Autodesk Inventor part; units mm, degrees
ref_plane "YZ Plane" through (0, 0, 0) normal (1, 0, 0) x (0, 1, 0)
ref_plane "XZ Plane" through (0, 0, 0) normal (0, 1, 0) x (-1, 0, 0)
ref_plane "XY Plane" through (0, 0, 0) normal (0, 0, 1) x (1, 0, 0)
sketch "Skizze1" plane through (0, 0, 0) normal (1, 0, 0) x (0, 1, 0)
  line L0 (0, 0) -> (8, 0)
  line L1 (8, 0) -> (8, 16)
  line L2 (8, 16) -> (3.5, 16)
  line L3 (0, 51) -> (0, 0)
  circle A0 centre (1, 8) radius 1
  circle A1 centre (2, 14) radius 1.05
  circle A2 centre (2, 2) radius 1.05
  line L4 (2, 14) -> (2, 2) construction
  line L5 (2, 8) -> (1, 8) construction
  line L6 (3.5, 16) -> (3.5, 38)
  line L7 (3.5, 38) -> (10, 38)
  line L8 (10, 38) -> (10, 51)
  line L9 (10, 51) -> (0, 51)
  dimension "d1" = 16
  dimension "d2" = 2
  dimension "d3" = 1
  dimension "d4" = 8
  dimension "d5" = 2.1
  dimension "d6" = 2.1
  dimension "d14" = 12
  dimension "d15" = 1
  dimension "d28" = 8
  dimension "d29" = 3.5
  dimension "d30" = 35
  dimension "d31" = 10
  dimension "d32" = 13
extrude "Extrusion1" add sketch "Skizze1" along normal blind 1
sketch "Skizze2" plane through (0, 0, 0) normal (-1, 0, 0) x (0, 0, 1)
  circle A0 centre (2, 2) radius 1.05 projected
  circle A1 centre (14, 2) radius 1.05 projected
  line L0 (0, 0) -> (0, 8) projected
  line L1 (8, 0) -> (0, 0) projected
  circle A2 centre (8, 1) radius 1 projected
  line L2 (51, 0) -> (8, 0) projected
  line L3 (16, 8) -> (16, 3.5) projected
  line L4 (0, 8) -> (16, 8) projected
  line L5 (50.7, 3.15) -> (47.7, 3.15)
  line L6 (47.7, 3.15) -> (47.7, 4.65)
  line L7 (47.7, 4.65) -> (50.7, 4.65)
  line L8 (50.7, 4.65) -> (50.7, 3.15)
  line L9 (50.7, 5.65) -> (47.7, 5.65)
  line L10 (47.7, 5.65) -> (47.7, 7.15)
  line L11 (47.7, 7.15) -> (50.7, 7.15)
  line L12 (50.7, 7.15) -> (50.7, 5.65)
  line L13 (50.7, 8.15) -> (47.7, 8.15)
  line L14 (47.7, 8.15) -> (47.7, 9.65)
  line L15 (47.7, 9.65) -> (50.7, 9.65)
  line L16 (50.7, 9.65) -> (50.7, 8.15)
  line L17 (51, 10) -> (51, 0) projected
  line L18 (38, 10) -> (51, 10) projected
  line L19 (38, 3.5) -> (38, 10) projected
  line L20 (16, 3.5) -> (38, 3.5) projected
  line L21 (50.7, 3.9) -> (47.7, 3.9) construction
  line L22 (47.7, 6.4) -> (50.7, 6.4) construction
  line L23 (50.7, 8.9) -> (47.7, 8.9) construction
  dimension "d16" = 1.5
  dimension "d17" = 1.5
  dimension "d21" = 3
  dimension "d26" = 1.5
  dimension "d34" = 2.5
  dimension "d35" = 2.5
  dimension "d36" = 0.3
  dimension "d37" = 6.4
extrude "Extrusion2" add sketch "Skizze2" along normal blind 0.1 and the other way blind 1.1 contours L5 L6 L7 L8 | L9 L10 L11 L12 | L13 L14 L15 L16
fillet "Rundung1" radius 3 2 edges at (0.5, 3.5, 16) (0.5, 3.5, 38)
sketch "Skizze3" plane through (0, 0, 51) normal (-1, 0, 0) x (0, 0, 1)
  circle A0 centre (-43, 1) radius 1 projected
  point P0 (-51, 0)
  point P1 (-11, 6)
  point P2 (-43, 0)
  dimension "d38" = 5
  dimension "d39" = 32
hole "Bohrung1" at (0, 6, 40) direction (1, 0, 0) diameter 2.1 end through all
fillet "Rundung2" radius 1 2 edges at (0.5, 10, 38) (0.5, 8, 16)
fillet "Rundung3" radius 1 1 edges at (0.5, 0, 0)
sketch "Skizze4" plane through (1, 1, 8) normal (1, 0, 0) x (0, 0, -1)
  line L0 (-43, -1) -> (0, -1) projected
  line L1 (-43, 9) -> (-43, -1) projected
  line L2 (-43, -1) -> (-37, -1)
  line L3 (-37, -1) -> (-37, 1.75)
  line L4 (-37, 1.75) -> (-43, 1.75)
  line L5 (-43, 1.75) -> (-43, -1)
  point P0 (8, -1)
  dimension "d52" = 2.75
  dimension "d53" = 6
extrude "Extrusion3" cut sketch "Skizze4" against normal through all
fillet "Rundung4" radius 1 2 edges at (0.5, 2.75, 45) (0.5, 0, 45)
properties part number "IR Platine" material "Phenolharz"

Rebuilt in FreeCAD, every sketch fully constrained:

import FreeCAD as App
import Part
import Sketcher
from FreeCAD import Vector
Q = App.Units.Quantity


def edges_at(feature, points):
    """Names of the edges that pass closest to the given points."""
    edges = feature.Shape.Edges
    near = lambda p: min(range(len(edges)), key=lambda i: edges[i].distToShape(Part.Vertex(*p))[0])
    return sorted({f"Edge{near(p) + 1}" for p in points})

doc = App.newDocument("Part")
params = doc.addObject("Spreadsheet::Sheet", "Params")
for row, (alias, value) in enumerate([
    ("sketch1_diameter", "2 mm"),
    ("sketch1_diameter2", "2.1 mm"),
    ("sketch1_width", "8 mm"),
    ("sketch1_width2", "10 mm"),
    ("sketch1_height", "16 mm"),
    ("pad1_length", "1 mm"),
    ("sketch2_height", "3 mm"),
    ("sketch2_width", "1.5 mm"),
    ("pad2_length", "0.1 mm"),
    ("pad2_length2", "1.1 mm"),
    ("fillet_radius", "3 mm"),
    ("sketch3_diameter", "2.1 mm"),
    ("hole_diameter", "2.1 mm"),
    ("fillet2_radius", "1 mm"),
    ("fillet3_radius", "1 mm"),
    ("sketch4_height", "6 mm"),
    ("sketch4_width", "2.75 mm"),
    ("fillet4_radius", "1 mm"),
], start=1):
    params.set(f"A{row}", alias)
    params.set(f"B{row}", "=" + value)
    params.setAlias(f"B{row}", alias)

body = doc.addObject("PartDesign::Body", "Body")

# Sketch on YZ plane
sketch1 = body.newObject("Sketcher::SketchObject", "Sketch")
sketch1.AttachmentSupport = (doc.getObject("YZ_Plane"), [""])
sketch1.MapMode = "FlatFace"
sketch1.addGeometry(Part.LineSegment(Vector(0, 8, 0), Vector(0, 0, 0)), False)
sketch1.addGeometry(Part.LineSegment(Vector(0, 0, 0), Vector(8, 0, 0)), False)
sketch1.addGeometry(Part.LineSegment(Vector(8, 0, 0), Vector(8, 16, 0)), False)
sketch1.addGeometry(Part.LineSegment(Vector(8, 16, 0), Vector(3.5, 16, 0)), False)
sketch1.addGeometry(Part.LineSegment(Vector(3.5, 16, 0), Vector(3.5, 38, 0)), False)
sketch1.addGeometry(Part.LineSegment(Vector(3.5, 38, 0), Vector(10, 38, 0)), False)
sketch1.addGeometry(Part.LineSegment(Vector(10, 38, 0), Vector(10, 51, 0)), False)
sketch1.addGeometry(Part.LineSegment(Vector(10, 51, 0), Vector(0, 51, 0)), False)
sketch1.addGeometry(Part.LineSegment(Vector(0, 51, 0), Vector(0, 8, 0)), False)
sketch1.addGeometry(Part.Circle(Vector(2, 2, 0), Vector(0, 0, 1), 1.05), False)
sketch1.addGeometry(Part.Circle(Vector(1, 8, 0), Vector(0, 0, 1), 1), False)
sketch1.addGeometry(Part.Circle(Vector(2, 14, 0), Vector(0, 0, 1), 1.05), False)
sketch1.addConstraint(Sketcher.Constraint("Coincident", 0, 2, 1, 1))
sketch1.addConstraint(Sketcher.Constraint("Coincident", 1, 2, 2, 1))
sketch1.addConstraint(Sketcher.Constraint("Coincident", 2, 2, 3, 1))
sketch1.addConstraint(Sketcher.Constraint("Coincident", 3, 2, 4, 1))
sketch1.addConstraint(Sketcher.Constraint("Coincident", 4, 2, 5, 1))
sketch1.addConstraint(Sketcher.Constraint("Coincident", 5, 2, 6, 1))
sketch1.addConstraint(Sketcher.Constraint("Coincident", 6, 2, 7, 1))
sketch1.addConstraint(Sketcher.Constraint("Coincident", 7, 2, 8, 1))
sketch1.addConstraint(Sketcher.Constraint("Coincident", 8, 2, 0, 1))
sketch1.addConstraint(Sketcher.Constraint("Vertical", 0))
sketch1.addConstraint(Sketcher.Constraint("Horizontal", 1))
sketch1.addConstraint(Sketcher.Constraint("Vertical", 2))
sketch1.addConstraint(Sketcher.Constraint("Horizontal", 3))
sketch1.addConstraint(Sketcher.Constraint("Vertical", 4))
sketch1.addConstraint(Sketcher.Constraint("Horizontal", 5))
sketch1.addConstraint(Sketcher.Constraint("Vertical", 6))
sketch1.addConstraint(Sketcher.Constraint("Horizontal", 7))
sketch1.addConstraint(Sketcher.Constraint("Vertical", 8))
sketch1.addConstraint(Sketcher.Constraint("Coincident", 0, 2, -1, 1))
sketch1.addConstraint(Sketcher.Constraint("Equal", 9, 11))
sketch1.addConstraint(Sketcher.Constraint("Horizontal", 10, 3, 8, 2))
sketch1.addConstraint(Sketcher.Constraint("Vertical", 9, 3, 11, 3))
sketch1.addConstraint(Sketcher.Constraint("Equal", 1, 0))
sketch1.addConstraint(Sketcher.Constraint("Diameter", 10, Q("2 mm")))
sketch1.addConstraint(Sketcher.Constraint("Diameter", 9, Q("2.1 mm")))
sketch1.addConstraint(Sketcher.Constraint("DistanceX", 1, 1, 1, 2, Q("8 mm")))
sketch1.addConstraint(Sketcher.Constraint("DistanceX", 7, 2, 7, 1, Q("10 mm")))
sketch1.addConstraint(Sketcher.Constraint("DistanceY", 2, 1, 2, 2, Q("16 mm")))
sketch1.addConstraint(Sketcher.Constraint("DistanceY", 6, 1, 6, 2, Q("13 mm")))
sketch1.addConstraint(Sketcher.Constraint("DistanceX", -1, 1, 9, 3, Q("2 mm")))
sketch1.addConstraint(Sketcher.Constraint("DistanceY", -1, 1, 9, 3, Q("2 mm")))
sketch1.addConstraint(Sketcher.Constraint("DistanceX", -1, 1, 10, 3, Q("1 mm")))
sketch1.addConstraint(Sketcher.Constraint("DistanceY", 9, 3, 11, 3, Q("12 mm")))
sketch1.addConstraint(Sketcher.Constraint("DistanceY", 2, 2, 6, 2, Q("35 mm")))
sketch1.addConstraint(Sketcher.Constraint("DistanceX", -1, 1, 3, 2, Q("3.5 mm")))
sketch1.setExpression("Constraints[23]", "Params.sketch1_diameter")
sketch1.setExpression("Constraints[24]", "Params.sketch1_diameter2")
sketch1.setExpression("Constraints[25]", "Params.sketch1_width")
sketch1.setExpression("Constraints[26]", "Params.sketch1_width2")
sketch1.setExpression("Constraints[27]", "Params.sketch1_height")
pad1 = body.newObject("PartDesign::Pad", "Pad")
pad1.Profile = sketch1
pad1.setExpression("Length", "Params.pad1_length")

# Sketch on YZ plane
sketch2 = body.newObject("Sketcher::SketchObject", "Sketch001")
sketch2.AttachmentSupport = (doc.getObject("YZ_Plane"), [""])
sketch2.MapMode = "FlatFace"
sketch2.addGeometry(Part.LineSegment(Vector(3.15, 47.7, 0), Vector(3.15, 50.7, 0)), False)
sketch2.addGeometry(Part.LineSegment(Vector(3.15, 50.7, 0), Vector(4.65, 50.7, 0)), False)
sketch2.addGeometry(Part.LineSegment(Vector(4.65, 50.7, 0), Vector(4.65, 47.7, 0)), False)
sketch2.addGeometry(Part.LineSegment(Vector(4.65, 47.7, 0), Vector(3.15, 47.7, 0)), False)
sketch2.addGeometry(Part.LineSegment(Vector(5.65, 47.7, 0), Vector(5.65, 50.7, 0)), False)
sketch2.addGeometry(Part.LineSegment(Vector(5.65, 50.7, 0), Vector(7.15, 50.7, 0)), False)
sketch2.addGeometry(Part.LineSegment(Vector(7.15, 50.7, 0), Vector(7.15, 47.7, 0)), False)
sketch2.addGeometry(Part.LineSegment(Vector(7.15, 47.7, 0), Vector(5.65, 47.7, 0)), False)
sketch2.addGeometry(Part.LineSegment(Vector(8.15, 47.7, 0), Vector(8.15, 50.7, 0)), False)
sketch2.addGeometry(Part.LineSegment(Vector(8.15, 50.7, 0), Vector(9.65, 50.7, 0)), False)
sketch2.addGeometry(Part.LineSegment(Vector(9.65, 50.7, 0), Vector(9.65, 47.7, 0)), False)
sketch2.addGeometry(Part.LineSegment(Vector(9.65, 47.7, 0), Vector(8.15, 47.7, 0)), False)
sketch2.addConstraint(Sketcher.Constraint("Coincident", 0, 2, 1, 1))
sketch2.addConstraint(Sketcher.Constraint("Coincident", 1, 2, 2, 1))
sketch2.addConstraint(Sketcher.Constraint("Coincident", 2, 2, 3, 1))
sketch2.addConstraint(Sketcher.Constraint("Coincident", 3, 2, 0, 1))
sketch2.addConstraint(Sketcher.Constraint("Coincident", 4, 2, 5, 1))
sketch2.addConstraint(Sketcher.Constraint("Coincident", 5, 2, 6, 1))
sketch2.addConstraint(Sketcher.Constraint("Coincident", 6, 2, 7, 1))
sketch2.addConstraint(Sketcher.Constraint("Coincident", 7, 2, 4, 1))
sketch2.addConstraint(Sketcher.Constraint("Coincident", 8, 2, 9, 1))
sketch2.addConstraint(Sketcher.Constraint("Coincident", 9, 2, 10, 1))
sketch2.addConstraint(Sketcher.Constraint("Coincident", 10, 2, 11, 1))
sketch2.addConstraint(Sketcher.Constraint("Coincident", 11, 2, 8, 1))
sketch2.addConstraint(Sketcher.Constraint("Vertical", 0))
sketch2.addConstraint(Sketcher.Constraint("Horizontal", 1))
sketch2.addConstraint(Sketcher.Constraint("Vertical", 2))
sketch2.addConstraint(Sketcher.Constraint("Horizontal", 3))
sketch2.addConstraint(Sketcher.Constraint("Vertical", 4))
sketch2.addConstraint(Sketcher.Constraint("Horizontal", 5))
sketch2.addConstraint(Sketcher.Constraint("Vertical", 6))
sketch2.addConstraint(Sketcher.Constraint("Horizontal", 7))
sketch2.addConstraint(Sketcher.Constraint("Vertical", 8))
sketch2.addConstraint(Sketcher.Constraint("Horizontal", 9))
sketch2.addConstraint(Sketcher.Constraint("Vertical", 10))
sketch2.addConstraint(Sketcher.Constraint("Horizontal", 11))
sketch2.addConstraint(Sketcher.Constraint("Horizontal", 1, 2, 4, 2))
sketch2.addConstraint(Sketcher.Constraint("Horizontal", 3, 2, 6, 2))
sketch2.addConstraint(Sketcher.Constraint("Horizontal", 5, 2, 8, 2))
sketch2.addConstraint(Sketcher.Constraint("Horizontal", 7, 2, 10, 2))
sketch2.addConstraint(Sketcher.Constraint("Equal", 3, 5))
sketch2.addConstraint(Sketcher.Constraint("Equal", 7, 9))
sketch2.addConstraint(Sketcher.Constraint("DistanceY", 0, 1, 0, 2, Q("3 mm")))
sketch2.addConstraint(Sketcher.Constraint("DistanceX", 1, 1, 1, 2, Q("1.5 mm")))
sketch2.addConstraint(Sketcher.Constraint("DistanceX", 0, 2, 4, 2, Q("2.5 mm")))
sketch2.addConstraint(Sketcher.Constraint("DistanceX", 4, 2, 8, 2, Q("2.5 mm")))
sketch2.addConstraint(Sketcher.Constraint("DistanceY", -1, 1, 0, 2, Q("50.7 mm")))
sketch2.addConstraint(Sketcher.Constraint("DistanceX", -1, 1, 0, 2, Q("3.15 mm")))
sketch2.setExpression("Constraints[30]", "Params.sketch2_height")
sketch2.setExpression("Constraints[31]", "Params.sketch2_width")
pad2 = body.newObject("PartDesign::Pad", "Pad001")
pad2.Profile = sketch2
pad2.Type = "TwoLengths"
pad2.setExpression("Length", "Params.pad2_length")
pad2.setExpression("Length2", "Params.pad2_length2")
pad2.Reversed = True
doc.recompute()

fillet = body.newObject("PartDesign::Fillet", "Fillet")
fillet.Base = (pad2, edges_at(pad2, [(0.5, 3.5, 16), (0.5, 3.5, 38)]))
fillet.setExpression("Radius", "Params.fillet_radius")

# Sketch on YZ plane
sketch3 = body.newObject("Sketcher::SketchObject", "Sketch002")
sketch3.AttachmentSupport = (doc.getObject("YZ_Plane"), [""])
sketch3.MapMode = "FlatFace"
sketch3.addGeometry(Part.Circle(Vector(6, 40, 0), Vector(0, 0, 1), 1.05), False)
sketch3.addConstraint(Sketcher.Constraint("Diameter", 0, Q("2.1 mm")))
sketch3.addConstraint(Sketcher.Constraint("DistanceX", -1, 1, 0, 3, Q("6 mm")))
sketch3.addConstraint(Sketcher.Constraint("DistanceY", -1, 1, 0, 3, Q("40 mm")))
sketch3.setExpression("Constraints[0]", "Params.sketch3_diameter")
doc.recompute()
hole = body.newObject("PartDesign::Hole", "Hole")
hole.Profile = sketch3
hole.ThreadType = "None"
hole.setExpression("Diameter", "Params.hole_diameter")
hole.DepthType = "ThroughAll"
hole.Reversed = True
doc.recompute()

fillet2 = body.newObject("PartDesign::Fillet", "Fillet001")
fillet2.Base = (hole, edges_at(hole, [(0.5, 10, 38), (0.5, 8, 16)]))
fillet2.setExpression("Radius", "Params.fillet2_radius")
doc.recompute()

fillet3 = body.newObject("PartDesign::Fillet", "Fillet002")
fillet3.Base = (fillet2, edges_at(fillet2, [(0.5, 0, 0)]))
fillet3.setExpression("Radius", "Params.fillet3_radius")

# Sketch on YZ plane
sketch4 = body.newObject("Sketcher::SketchObject", "Sketch003")
sketch4.AttachmentSupport = (doc.getObject("YZ_Plane"), [""])
sketch4.MapMode = "FlatFace"
sketch4.AttachmentOffset = App.Placement(Vector(0, 0, 1), App.Rotation())
sketch4.addGeometry(Part.LineSegment(Vector(2.75, 51, 0), Vector(0, 51, 0)), False)
sketch4.addGeometry(Part.LineSegment(Vector(0, 51, 0), Vector(0, 45, 0)), False)
sketch4.addGeometry(Part.LineSegment(Vector(0, 45, 0), Vector(2.75, 45, 0)), False)
sketch4.addGeometry(Part.LineSegment(Vector(2.75, 45, 0), Vector(2.75, 51, 0)), False)
sketch4.addConstraint(Sketcher.Constraint("Coincident", 0, 2, 1, 1))
sketch4.addConstraint(Sketcher.Constraint("Coincident", 1, 2, 2, 1))
sketch4.addConstraint(Sketcher.Constraint("Coincident", 2, 2, 3, 1))
sketch4.addConstraint(Sketcher.Constraint("Coincident", 3, 2, 0, 1))
sketch4.addConstraint(Sketcher.Constraint("Horizontal", 0))
sketch4.addConstraint(Sketcher.Constraint("Vertical", 1))
sketch4.addConstraint(Sketcher.Constraint("Horizontal", 2))
sketch4.addConstraint(Sketcher.Constraint("Vertical", 3))
sketch4.addConstraint(Sketcher.Constraint("PointOnObject", 0, 2, -2))
sketch4.addConstraint(Sketcher.Constraint("DistanceY", 1, 2, 1, 1, Q("6 mm")))
sketch4.addConstraint(Sketcher.Constraint("DistanceX", 0, 2, 0, 1, Q("2.75 mm")))
sketch4.addConstraint(Sketcher.Constraint("DistanceY", -1, 1, 0, 2, Q("51 mm")))
sketch4.setExpression("Constraints[9]", "Params.sketch4_height")
sketch4.setExpression("Constraints[10]", "Params.sketch4_width")
pocket1 = body.newObject("PartDesign::Pocket", "Pocket")
pocket1.Profile = sketch4
pocket1.Type = "ThroughAll"
doc.recompute()

fillet4 = body.newObject("PartDesign::Fillet", "Fillet003")
fillet4.Base = (pocket1, edges_at(pocket1, [(0.5, 2.75, 45), (0.5, 0, 45)]))
fillet4.setExpression("Radius", "Params.fillet4_radius")

doc.recompute()
